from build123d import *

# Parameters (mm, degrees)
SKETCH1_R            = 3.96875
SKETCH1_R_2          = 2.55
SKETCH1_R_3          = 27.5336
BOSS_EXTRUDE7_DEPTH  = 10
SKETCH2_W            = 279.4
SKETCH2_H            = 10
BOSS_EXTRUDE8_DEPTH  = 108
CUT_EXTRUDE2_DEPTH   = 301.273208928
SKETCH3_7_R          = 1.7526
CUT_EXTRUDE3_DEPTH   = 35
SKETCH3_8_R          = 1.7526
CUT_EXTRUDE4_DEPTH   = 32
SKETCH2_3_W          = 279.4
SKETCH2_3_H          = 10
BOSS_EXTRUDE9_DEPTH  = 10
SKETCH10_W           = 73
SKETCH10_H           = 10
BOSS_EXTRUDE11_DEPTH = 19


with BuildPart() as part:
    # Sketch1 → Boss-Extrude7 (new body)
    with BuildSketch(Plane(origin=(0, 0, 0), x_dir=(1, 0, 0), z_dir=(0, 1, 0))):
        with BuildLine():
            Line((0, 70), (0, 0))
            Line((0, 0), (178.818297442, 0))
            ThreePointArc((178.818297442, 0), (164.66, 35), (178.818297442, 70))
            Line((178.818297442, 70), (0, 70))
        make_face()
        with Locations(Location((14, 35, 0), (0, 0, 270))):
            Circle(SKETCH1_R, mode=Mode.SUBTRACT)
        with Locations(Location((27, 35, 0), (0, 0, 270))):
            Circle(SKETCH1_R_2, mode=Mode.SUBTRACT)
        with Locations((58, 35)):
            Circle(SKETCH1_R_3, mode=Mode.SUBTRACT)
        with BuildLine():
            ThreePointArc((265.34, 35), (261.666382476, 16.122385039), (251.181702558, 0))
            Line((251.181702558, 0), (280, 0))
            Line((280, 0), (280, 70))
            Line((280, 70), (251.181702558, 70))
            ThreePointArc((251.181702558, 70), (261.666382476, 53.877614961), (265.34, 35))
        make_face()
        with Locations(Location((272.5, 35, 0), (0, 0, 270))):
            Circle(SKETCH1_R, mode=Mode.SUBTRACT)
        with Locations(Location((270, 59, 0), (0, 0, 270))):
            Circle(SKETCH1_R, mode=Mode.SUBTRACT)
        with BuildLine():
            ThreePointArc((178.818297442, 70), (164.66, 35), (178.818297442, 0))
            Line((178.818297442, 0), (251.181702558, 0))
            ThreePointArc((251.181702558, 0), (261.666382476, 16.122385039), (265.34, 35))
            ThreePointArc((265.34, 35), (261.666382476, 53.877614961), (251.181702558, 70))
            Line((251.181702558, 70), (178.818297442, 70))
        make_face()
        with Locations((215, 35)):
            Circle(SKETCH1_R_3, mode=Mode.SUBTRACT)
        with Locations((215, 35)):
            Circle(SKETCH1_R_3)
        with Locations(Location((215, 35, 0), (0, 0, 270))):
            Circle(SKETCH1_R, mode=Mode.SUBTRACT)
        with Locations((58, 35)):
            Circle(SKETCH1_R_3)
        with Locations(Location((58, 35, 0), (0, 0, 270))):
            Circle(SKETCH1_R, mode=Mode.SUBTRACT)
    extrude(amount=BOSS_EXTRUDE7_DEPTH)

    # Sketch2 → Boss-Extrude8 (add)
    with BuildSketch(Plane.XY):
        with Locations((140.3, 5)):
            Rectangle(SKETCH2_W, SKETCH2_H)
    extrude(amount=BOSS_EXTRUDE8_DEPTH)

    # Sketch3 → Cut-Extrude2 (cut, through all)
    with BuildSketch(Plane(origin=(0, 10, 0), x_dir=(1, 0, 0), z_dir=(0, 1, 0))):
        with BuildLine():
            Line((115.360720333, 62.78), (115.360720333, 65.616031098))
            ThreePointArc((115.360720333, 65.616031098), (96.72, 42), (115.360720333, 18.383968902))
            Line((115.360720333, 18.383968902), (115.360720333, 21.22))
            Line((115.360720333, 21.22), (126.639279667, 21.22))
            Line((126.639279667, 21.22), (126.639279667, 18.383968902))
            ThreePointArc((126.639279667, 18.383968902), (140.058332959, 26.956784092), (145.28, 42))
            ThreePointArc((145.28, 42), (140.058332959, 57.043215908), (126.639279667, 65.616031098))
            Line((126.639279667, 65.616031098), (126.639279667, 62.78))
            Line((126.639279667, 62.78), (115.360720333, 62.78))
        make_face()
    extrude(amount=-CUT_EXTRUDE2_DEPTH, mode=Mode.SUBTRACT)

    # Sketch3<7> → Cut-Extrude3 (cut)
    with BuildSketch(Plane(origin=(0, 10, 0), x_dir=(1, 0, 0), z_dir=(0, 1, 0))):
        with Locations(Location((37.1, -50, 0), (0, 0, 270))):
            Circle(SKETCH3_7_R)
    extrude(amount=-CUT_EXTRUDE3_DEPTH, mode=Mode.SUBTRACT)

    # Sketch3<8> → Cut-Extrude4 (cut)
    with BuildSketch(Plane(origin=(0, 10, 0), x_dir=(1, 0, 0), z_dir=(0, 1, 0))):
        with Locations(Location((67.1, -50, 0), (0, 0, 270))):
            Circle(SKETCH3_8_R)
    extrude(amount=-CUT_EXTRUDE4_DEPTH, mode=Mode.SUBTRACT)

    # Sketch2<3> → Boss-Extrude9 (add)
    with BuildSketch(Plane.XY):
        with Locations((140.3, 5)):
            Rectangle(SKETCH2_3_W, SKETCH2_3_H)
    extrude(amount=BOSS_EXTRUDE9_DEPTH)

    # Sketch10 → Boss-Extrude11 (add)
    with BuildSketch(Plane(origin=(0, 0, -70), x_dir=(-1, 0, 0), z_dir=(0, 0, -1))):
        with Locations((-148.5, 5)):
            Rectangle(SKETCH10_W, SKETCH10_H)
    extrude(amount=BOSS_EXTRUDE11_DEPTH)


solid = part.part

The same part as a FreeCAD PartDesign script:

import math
import FreeCAD as App
import Part
import Sketcher
Q = App.Units.Quantity

doc = App.newDocument("Part")
params = doc.addObject("Spreadsheet::Sheet", "Params")
for row, (alias, value) in enumerate([
    ("sketch1_diameter", "5.1 mm"),
    ("sketch1_width", "280 mm"),
    ("sketch1_height", "70 mm"),
    ("pad1_length", "10 mm"),
    ("sketch2_height", "10 mm"),
    ("sketch2_width", "279.4 mm"),
    ("pad2_length", "108 mm"),
    ("sketch3_radius", "24.28 mm"),
    ("pocket2_length", "35 mm"),
    ("pocket3_length", "32 mm"),
    ("sketch6_height", "10 mm"),
    ("sketch6_width", "279.4 mm"),
    ("pad3_length", "10 mm"),
    ("sketch7_width", "73 mm"),
    ("sketch7_height", "10 mm"),
    ("pad4_length", "19 mm"),
], start=1):
    params.set(f"A{row}", alias)
    params.set(f"B{row}", "=" + value)
    params.setAlias(f"B{row}", alias)

body = doc.addObject("PartDesign::Body", "Body")

# Sketch on XZ plane
sketch1 = doc.addObject("Sketcher::SketchObject", "Sketch")
body.addObject(sketch1)
sketch1.AttachmentSupport = (doc.XZ_Plane, [""])
sketch1.MapMode = "FlatFace"
sketch1.addGeometry([
    Part.LineSegment(App.Vector(0, -70, 0), App.Vector(0, 0, 0)),  # 0
    Part.LineSegment(App.Vector(0, 0, 0), App.Vector(280, 0, 0)),  # 1
    Part.LineSegment(App.Vector(280, 0, 0), App.Vector(280, -70, 0)),  # 2
    Part.LineSegment(App.Vector(280, -70, 0), App.Vector(0, -70, 0)),  # 3
    Part.Circle(App.Vector(14, -35, 0), App.Vector(0, 0, 1), 4),  # 4
    Part.Circle(App.Vector(27, -35, 0), App.Vector(0, 0, 1), 2.5),  # 5
    Part.Circle(App.Vector(58, -35, 0), App.Vector(0, 0, 1), 4),  # 6
    Part.Circle(App.Vector(215, -35, 0), App.Vector(0, 0, 1), 4),  # 7
    Part.Circle(App.Vector(272.5, -35, 0), App.Vector(0, 0, 1), 4),  # 8
    Part.Circle(App.Vector(270, -59, 0), App.Vector(0, 0, 1), 4),  # 9
], False)
sketch1.addConstraint([
    Sketcher.Constraint("Coincident", 0, 2, 1, 1),
    Sketcher.Constraint("Coincident", 1, 2, 2, 1),
    Sketcher.Constraint("Coincident", 2, 2, 3, 1),
    Sketcher.Constraint("Coincident", 3, 2, 0, 1),
    Sketcher.Constraint("Vertical", 0),
    Sketcher.Constraint("Horizontal", 1),
    Sketcher.Constraint("Vertical", 2),
    Sketcher.Constraint("Horizontal", 3),
    Sketcher.Constraint("Coincident", 0, 2, -1, 1),
    Sketcher.Constraint("Equal", 4, 6),
    Sketcher.Constraint("Equal", 6, 7),
    Sketcher.Constraint("Equal", 7, 8),
    Sketcher.Constraint("Equal", 8, 9),
    Sketcher.Constraint("Horizontal", 4, 3, 5, 3),
    Sketcher.Constraint("Horizontal", 5, 3, 6, 3),
    Sketcher.Constraint("Horizontal", 6, 3, 7, 3),
    Sketcher.Constraint("Horizontal", 7, 3, 8, 3),
    Sketcher.Constraint("Diameter", 5, Q("5.1 mm")),
    Sketcher.Constraint("DistanceX", 1, 1, 1, 2, Q("280 mm")),
    Sketcher.Constraint("DistanceY", 0, 1, 0, 2, Q("70 mm")),
    Sketcher.Constraint("DistanceX", -1, 1, 4, 3, Q("14 mm")),
    Sketcher.Constraint("DistanceY", 4, 3, -1, 1, Q("35 mm")),
    Sketcher.Constraint("DistanceX", -1, 1, 5, 3, Q("27 mm")),
    Sketcher.Constraint("DistanceX", -1, 1, 6, 3, Q("58 mm")),
    Sketcher.Constraint("DistanceX", -1, 1, 7, 3, Q("215 mm")),
    Sketcher.Constraint("DistanceX", -1, 1, 9, 3, Q("270 mm")),
    Sketcher.Constraint("DistanceY", 9, 3, -1, 1, Q("59 mm")),
    Sketcher.Constraint("Diameter", 4, Q("7.9375 mm")),
    Sketcher.Constraint("DistanceX", -1, 1, 8, 3, Q("272.5 mm")),
])
sketch1.setExpression("Constraints[17]", "Params.sketch1_diameter")
sketch1.setExpression("Constraints[18]", "Params.sketch1_width")
sketch1.setExpression("Constraints[19]", "Params.sketch1_height")
pad1 = doc.addObject("PartDesign::Pad", "Pad")
body.addObject(pad1)
pad1.Profile = sketch1
pad1.setExpression("Length", "Params.pad1_length")
pad1.Reversed = True

# Sketch on XY plane
sketch2 = doc.addObject("Sketcher::SketchObject", "Sketch001")
body.addObject(sketch2)
sketch2.AttachmentSupport = (doc.XY_Plane, [""])
sketch2.MapMode = "FlatFace"
sketch2.addGeometry([
    Part.LineSegment(App.Vector(1, 10, 0), App.Vector(1, 0, 0)),
    Part.LineSegment(App.Vector(1, 0, 0), App.Vector(280, 0, 0)),
    Part.LineSegment(App.Vector(280, 0, 0), App.Vector(280, 10, 0)),
    Part.LineSegment(App.Vector(280, 10, 0), App.Vector(1, 10, 0)),
], False)
sketch2.addConstraint([
    Sketcher.Constraint("Coincident", 0, 2, 1, 1),
    Sketcher.Constraint("Coincident", 1, 2, 2, 1),
    Sketcher.Constraint("Coincident", 2, 2, 3, 1),
    Sketcher.Constraint("Coincident", 3, 2, 0, 1),
    Sketcher.Constraint("Vertical", 0),
    Sketcher.Constraint("Horizontal", 1),
    Sketcher.Constraint("Vertical", 2),
    Sketcher.Constraint("Horizontal", 3),
    Sketcher.Constraint("PointOnObject", 0, 2, -1),
    Sketcher.Constraint("DistanceY", 0, 2, 0, 1, Q("10 mm")),
    Sketcher.Constraint("DistanceX", 1, 1, 1, 2, Q("279.4 mm")),
    Sketcher.Constraint("DistanceX", -1, 1, 1, 2, Q("280 mm")),
])
sketch2.setExpression("Constraints[9]", "Params.sketch2_height")
sketch2.setExpression("Constraints[10]", "Params.sketch2_width")
pad2 = doc.addObject("PartDesign::Pad", "Pad001")
body.addObject(pad2)
pad2.Profile = sketch2
pad2.setExpression("Length", "Params.pad2_length")

# Sketch on XZ plane
sketch3 = doc.addObject("Sketcher::SketchObject", "Sketch002")
body.addObject(sketch3)
sketch3.AttachmentSupport = (doc.XZ_Plane, [""])
sketch3.MapMode = "FlatFace"
sketch3.AttachmentOffset = App.Placement(App.Vector(0, 0, -10), App.Rotation())
sketch3.addGeometry([
    Part.LineSegment(App.Vector(115.4, -62.8, 0), App.Vector(115.4, -65.6, 0)),  # 0
    Part.ArcOfCircle(Part.Circle(App.Vector(121, -42, 0), App.Vector(0, 0, 1), 24.3), math.radians(103), math.radians(257)),  # 1
    Part.LineSegment(App.Vector(115.4, -18.4, 0), App.Vector(115.4, -21.2, 0)),  # 2
    Part.LineSegment(App.Vector(115.4, -21.2, 0), App.Vector(126.6, -21.2, 0)),  # 3
    Part.LineSegment(App.Vector(126.6, -21.2, 0), App.Vector(126.6, -18.4, 0)),  # 4
    Part.ArcOfCircle(Part.Circle(App.Vector(121, -42, 0), App.Vector(0, 0, 1), 24.3), math.radians(0), math.radians(77)),  # 5
    Part.ArcOfCircle(Part.Circle(App.Vector(121, -42, 0), App.Vector(0, 0, 1), 24.3), math.radians(-77), math.radians(0)),  # 6
    Part.LineSegment(App.Vector(126.6, -65.6, 0), App.Vector(126.6, -62.8, 0)),  # 7
    Part.LineSegment(App.Vector(126.6, -62.8, 0), App.Vector(115.4, -62.8, 0)),  # 8
], False)
sketch3.addConstraint([
    Sketcher.Constraint("Coincident", 0, 2, 1, 2),
    Sketcher.Constraint("Coincident", 1, 1, 2, 1),
    Sketcher.Constraint("Coincident", 2, 2, 3, 1),
    Sketcher.Constraint("Coincident", 3, 2, 4, 1),
    Sketcher.Constraint("Coincident", 4, 2, 5, 2),
    Sketcher.Constraint("Tangent", 5, 1, 6, 2),
    Sketcher.Constraint("Coincident", 6, 1, 7, 1),
    Sketcher.Constraint("Coincident", 7, 2, 8, 1),
    Sketcher.Constraint("Coincident", 8, 2, 0, 1),
    Sketcher.Constraint("Vertical", 0),
    Sketcher.Constraint("Vertical", 2),
    Sketcher.Constraint("Horizontal", 3),
    Sketcher.Constraint("Vertical", 4),
    Sketcher.Constraint("Vertical", 7),
    Sketcher.Constraint("Horizontal", 8),
    Sketcher.Constraint("Coincident", 5, 3, 1, 3),
    Sketcher.Constraint("Equal", 1, 5),
    Sketcher.Constraint("Equal", 5, 6),
    Sketcher.Constraint("Horizontal", 1, 1, 4, 2),
    Sketcher.Constraint("Horizontal", 6, 3, 5, 1),
    Sketcher.Constraint("Horizontal", 0, 2, 6, 1),
    Sketcher.Constraint("Vertical", 0, 2, 1, 1),
    Sketcher.Constraint("Equal", 0, 2),
    Sketcher.Constraint("Radius", 1, Q("24.28 mm")),
    Sketcher.Constraint("DistanceX", -1, 1, 1, 3, Q("121 mm")),
    Sketcher.Constraint("DistanceY", 1, 3, -1, 1, Q("42 mm")),
    Sketcher.Constraint("DistanceY", 2, 2, -1, 1, Q("21.22 mm")),
    Sketcher.Constraint("DistanceX", 3, 1, 3, 2, Q("11.278559 mm")),
])
sketch3.setExpression("Constraints[23]", "Params.sketch3_radius")
pocket1 = doc.addObject("PartDesign::Pocket", "Pocket")
body.addObject(pocket1)
pocket1.Profile = sketch3
pocket1.Type = "ThroughAll"
pocket1.Reversed = True

# Sketch on XZ plane
sketch4 = doc.addObject("Sketcher::SketchObject", "Sketch003")
body.addObject(sketch4)
sketch4.AttachmentSupport = (doc.XZ_Plane, [""])
sketch4.MapMode = "FlatFace"
sketch4.AttachmentOffset = App.Placement(App.Vector(0, 0, -10), App.Rotation())
sketch4.addGeometry(Part.Circle(App.Vector(37.1, 50, 0), App.Vector(0, 0, 1), 1.8), False)
sketch4.addConstraint([
    Sketcher.Constraint("DistanceY", -1, 1, 0, 3, Q("50 mm")),
    Sketcher.Constraint("Diameter", 0, Q("3.5052 mm")),
    Sketcher.Constraint("DistanceX", -1, 1, 0, 3, Q("37.1 mm")),
])
pocket2 = doc.addObject("PartDesign::Pocket", "Pocket001")
body.addObject(pocket2)
pocket2.Profile = sketch4
pocket2.setExpression("Length", "Params.pocket2_length")
pocket2.Reversed = True

# Sketch on XZ plane
sketch5 = doc.addObject("Sketcher::SketchObject", "Sketch004")
body.addObject(sketch5)
sketch5.AttachmentSupport = (doc.XZ_Plane, [""])
sketch5.MapMode = "FlatFace"
sketch5.AttachmentOffset = App.Placement(App.Vector(0, 0, -10), App.Rotation())
sketch5.addGeometry(Part.Circle(App.Vector(67.1, 50, 0), App.Vector(0, 0, 1), 1.8), False)
sketch5.addConstraint([
    Sketcher.Constraint("DistanceY", -1, 1, 0, 3, Q("50 mm")),
    Sketcher.Constraint("Diameter", 0, Q("3.5052 mm")),
    Sketcher.Constraint("DistanceX", -1, 1, 0, 3, Q("67.1 mm")),
])
pocket3 = doc.addObject("PartDesign::Pocket", "Pocket002")
body.addObject(pocket3)
pocket3.Profile = sketch5
pocket3.setExpression("Length", "Params.pocket3_length")
pocket3.Reversed = True

# Sketch on XY plane
sketch6 = doc.addObject("Sketcher::SketchObject", "Sketch005")
body.addObject(sketch6)
sketch6.AttachmentSupport = (doc.XY_Plane, [""])
sketch6.MapMode = "FlatFace"
sketch6.addGeometry([
    Part.LineSegment(App.Vector(1, 10, 0), App.Vector(1, 0, 0)),
    Part.LineSegment(App.Vector(1, 0, 0), App.Vector(280, 0, 0)),
    Part.LineSegment(App.Vector(280, 0, 0), App.Vector(280, 10, 0)),
    Part.LineSegment(App.Vector(280, 10, 0), App.Vector(1, 10, 0)),
], False)
sketch6.addConstraint([
    Sketcher.Constraint("Coincident", 0, 2, 1, 1),
    Sketcher.Constraint("Coincident", 1, 2, 2, 1),
    Sketcher.Constraint("Coincident", 2, 2, 3, 1),
    Sketcher.Constraint("Coincident", 3, 2, 0, 1),
    Sketcher.Constraint("Vertical", 0),
    Sketcher.Constraint("Horizontal", 1),
    Sketcher.Constraint("Vertical", 2),
    Sketcher.Constraint("Horizontal", 3),
    Sketcher.Constraint("PointOnObject", 0, 2, -1),
    Sketcher.Constraint("DistanceY", 0, 2, 0, 1, Q("10 mm")),
    Sketcher.Constraint("DistanceX", 1, 1, 1, 2, Q("279.4 mm")),
    Sketcher.Constraint("DistanceX", -1, 1, 1, 2, Q("280 mm")),
])
sketch6.setExpression("Constraints[9]", "Params.sketch6_height")
sketch6.setExpression("Constraints[10]", "Params.sketch6_width")
pad3 = doc.addObject("PartDesign::Pad", "Pad002")
body.addObject(pad3)
pad3.Profile = sketch6
pad3.setExpression("Length", "Params.pad3_length")

# Sketch on XY plane
sketch7 = doc.addObject("Sketcher::SketchObject", "Sketch006")
body.addObject(sketch7)
sketch7.AttachmentSupport = (doc.XY_Plane, [""])
sketch7.MapMode = "FlatFace"
sketch7.AttachmentOffset = App.Placement(App.Vector(0, 0, -70), App.Rotation())
sketch7.addGeometry([
    Part.LineSegment(App.Vector(185, 10, 0), App.Vector(185, 0, 0)),
    Part.LineSegment(App.Vector(185, 0, 0), App.Vector(112, 0, 0)),
    Part.LineSegment(App.Vector(112, 0, 0), App.Vector(112, 10, 0)),
    Part.LineSegment(App.Vector(112, 10, 0), App.Vector(185, 10, 0)),
], False)
sketch7.addConstraint([
    Sketcher.Constraint("Coincident", 0, 2, 1, 1),
    Sketcher.Constraint("Coincident", 1, 2, 2, 1),
    Sketcher.Constraint("Coincident", 2, 2, 3, 1),
    Sketcher.Constraint("Coincident", 3, 2, 0, 1),
    Sketcher.Constraint("Vertical", 0),
    Sketcher.Constraint("Horizontal", 1),
    Sketcher.Constraint("Vertical", 2),
    Sketcher.Constraint("Horizontal", 3),
    Sketcher.Constraint("PointOnObject", 0, 2, -1),
    Sketcher.Constraint("DistanceX", 1, 2, 1, 1, Q("73 mm")),
    Sketcher.Constraint("DistanceY", 0, 2, 0, 1, Q("10 mm")),
    Sketcher.Constraint("DistanceX", -1, 1, 0, 2, Q("185 mm")),
])
sketch7.setExpression("Constraints[9]", "Params.sketch7_width")
sketch7.setExpression("Constraints[10]", "Params.sketch7_height")
pad4 = doc.addObject("PartDesign::Pad", "Pad003")
body.addObject(pad4)
pad4.Profile = sketch7
pad4.setExpression("Length", "Params.pad4_length")
pad4.Reversed = True

doc.recompute()
